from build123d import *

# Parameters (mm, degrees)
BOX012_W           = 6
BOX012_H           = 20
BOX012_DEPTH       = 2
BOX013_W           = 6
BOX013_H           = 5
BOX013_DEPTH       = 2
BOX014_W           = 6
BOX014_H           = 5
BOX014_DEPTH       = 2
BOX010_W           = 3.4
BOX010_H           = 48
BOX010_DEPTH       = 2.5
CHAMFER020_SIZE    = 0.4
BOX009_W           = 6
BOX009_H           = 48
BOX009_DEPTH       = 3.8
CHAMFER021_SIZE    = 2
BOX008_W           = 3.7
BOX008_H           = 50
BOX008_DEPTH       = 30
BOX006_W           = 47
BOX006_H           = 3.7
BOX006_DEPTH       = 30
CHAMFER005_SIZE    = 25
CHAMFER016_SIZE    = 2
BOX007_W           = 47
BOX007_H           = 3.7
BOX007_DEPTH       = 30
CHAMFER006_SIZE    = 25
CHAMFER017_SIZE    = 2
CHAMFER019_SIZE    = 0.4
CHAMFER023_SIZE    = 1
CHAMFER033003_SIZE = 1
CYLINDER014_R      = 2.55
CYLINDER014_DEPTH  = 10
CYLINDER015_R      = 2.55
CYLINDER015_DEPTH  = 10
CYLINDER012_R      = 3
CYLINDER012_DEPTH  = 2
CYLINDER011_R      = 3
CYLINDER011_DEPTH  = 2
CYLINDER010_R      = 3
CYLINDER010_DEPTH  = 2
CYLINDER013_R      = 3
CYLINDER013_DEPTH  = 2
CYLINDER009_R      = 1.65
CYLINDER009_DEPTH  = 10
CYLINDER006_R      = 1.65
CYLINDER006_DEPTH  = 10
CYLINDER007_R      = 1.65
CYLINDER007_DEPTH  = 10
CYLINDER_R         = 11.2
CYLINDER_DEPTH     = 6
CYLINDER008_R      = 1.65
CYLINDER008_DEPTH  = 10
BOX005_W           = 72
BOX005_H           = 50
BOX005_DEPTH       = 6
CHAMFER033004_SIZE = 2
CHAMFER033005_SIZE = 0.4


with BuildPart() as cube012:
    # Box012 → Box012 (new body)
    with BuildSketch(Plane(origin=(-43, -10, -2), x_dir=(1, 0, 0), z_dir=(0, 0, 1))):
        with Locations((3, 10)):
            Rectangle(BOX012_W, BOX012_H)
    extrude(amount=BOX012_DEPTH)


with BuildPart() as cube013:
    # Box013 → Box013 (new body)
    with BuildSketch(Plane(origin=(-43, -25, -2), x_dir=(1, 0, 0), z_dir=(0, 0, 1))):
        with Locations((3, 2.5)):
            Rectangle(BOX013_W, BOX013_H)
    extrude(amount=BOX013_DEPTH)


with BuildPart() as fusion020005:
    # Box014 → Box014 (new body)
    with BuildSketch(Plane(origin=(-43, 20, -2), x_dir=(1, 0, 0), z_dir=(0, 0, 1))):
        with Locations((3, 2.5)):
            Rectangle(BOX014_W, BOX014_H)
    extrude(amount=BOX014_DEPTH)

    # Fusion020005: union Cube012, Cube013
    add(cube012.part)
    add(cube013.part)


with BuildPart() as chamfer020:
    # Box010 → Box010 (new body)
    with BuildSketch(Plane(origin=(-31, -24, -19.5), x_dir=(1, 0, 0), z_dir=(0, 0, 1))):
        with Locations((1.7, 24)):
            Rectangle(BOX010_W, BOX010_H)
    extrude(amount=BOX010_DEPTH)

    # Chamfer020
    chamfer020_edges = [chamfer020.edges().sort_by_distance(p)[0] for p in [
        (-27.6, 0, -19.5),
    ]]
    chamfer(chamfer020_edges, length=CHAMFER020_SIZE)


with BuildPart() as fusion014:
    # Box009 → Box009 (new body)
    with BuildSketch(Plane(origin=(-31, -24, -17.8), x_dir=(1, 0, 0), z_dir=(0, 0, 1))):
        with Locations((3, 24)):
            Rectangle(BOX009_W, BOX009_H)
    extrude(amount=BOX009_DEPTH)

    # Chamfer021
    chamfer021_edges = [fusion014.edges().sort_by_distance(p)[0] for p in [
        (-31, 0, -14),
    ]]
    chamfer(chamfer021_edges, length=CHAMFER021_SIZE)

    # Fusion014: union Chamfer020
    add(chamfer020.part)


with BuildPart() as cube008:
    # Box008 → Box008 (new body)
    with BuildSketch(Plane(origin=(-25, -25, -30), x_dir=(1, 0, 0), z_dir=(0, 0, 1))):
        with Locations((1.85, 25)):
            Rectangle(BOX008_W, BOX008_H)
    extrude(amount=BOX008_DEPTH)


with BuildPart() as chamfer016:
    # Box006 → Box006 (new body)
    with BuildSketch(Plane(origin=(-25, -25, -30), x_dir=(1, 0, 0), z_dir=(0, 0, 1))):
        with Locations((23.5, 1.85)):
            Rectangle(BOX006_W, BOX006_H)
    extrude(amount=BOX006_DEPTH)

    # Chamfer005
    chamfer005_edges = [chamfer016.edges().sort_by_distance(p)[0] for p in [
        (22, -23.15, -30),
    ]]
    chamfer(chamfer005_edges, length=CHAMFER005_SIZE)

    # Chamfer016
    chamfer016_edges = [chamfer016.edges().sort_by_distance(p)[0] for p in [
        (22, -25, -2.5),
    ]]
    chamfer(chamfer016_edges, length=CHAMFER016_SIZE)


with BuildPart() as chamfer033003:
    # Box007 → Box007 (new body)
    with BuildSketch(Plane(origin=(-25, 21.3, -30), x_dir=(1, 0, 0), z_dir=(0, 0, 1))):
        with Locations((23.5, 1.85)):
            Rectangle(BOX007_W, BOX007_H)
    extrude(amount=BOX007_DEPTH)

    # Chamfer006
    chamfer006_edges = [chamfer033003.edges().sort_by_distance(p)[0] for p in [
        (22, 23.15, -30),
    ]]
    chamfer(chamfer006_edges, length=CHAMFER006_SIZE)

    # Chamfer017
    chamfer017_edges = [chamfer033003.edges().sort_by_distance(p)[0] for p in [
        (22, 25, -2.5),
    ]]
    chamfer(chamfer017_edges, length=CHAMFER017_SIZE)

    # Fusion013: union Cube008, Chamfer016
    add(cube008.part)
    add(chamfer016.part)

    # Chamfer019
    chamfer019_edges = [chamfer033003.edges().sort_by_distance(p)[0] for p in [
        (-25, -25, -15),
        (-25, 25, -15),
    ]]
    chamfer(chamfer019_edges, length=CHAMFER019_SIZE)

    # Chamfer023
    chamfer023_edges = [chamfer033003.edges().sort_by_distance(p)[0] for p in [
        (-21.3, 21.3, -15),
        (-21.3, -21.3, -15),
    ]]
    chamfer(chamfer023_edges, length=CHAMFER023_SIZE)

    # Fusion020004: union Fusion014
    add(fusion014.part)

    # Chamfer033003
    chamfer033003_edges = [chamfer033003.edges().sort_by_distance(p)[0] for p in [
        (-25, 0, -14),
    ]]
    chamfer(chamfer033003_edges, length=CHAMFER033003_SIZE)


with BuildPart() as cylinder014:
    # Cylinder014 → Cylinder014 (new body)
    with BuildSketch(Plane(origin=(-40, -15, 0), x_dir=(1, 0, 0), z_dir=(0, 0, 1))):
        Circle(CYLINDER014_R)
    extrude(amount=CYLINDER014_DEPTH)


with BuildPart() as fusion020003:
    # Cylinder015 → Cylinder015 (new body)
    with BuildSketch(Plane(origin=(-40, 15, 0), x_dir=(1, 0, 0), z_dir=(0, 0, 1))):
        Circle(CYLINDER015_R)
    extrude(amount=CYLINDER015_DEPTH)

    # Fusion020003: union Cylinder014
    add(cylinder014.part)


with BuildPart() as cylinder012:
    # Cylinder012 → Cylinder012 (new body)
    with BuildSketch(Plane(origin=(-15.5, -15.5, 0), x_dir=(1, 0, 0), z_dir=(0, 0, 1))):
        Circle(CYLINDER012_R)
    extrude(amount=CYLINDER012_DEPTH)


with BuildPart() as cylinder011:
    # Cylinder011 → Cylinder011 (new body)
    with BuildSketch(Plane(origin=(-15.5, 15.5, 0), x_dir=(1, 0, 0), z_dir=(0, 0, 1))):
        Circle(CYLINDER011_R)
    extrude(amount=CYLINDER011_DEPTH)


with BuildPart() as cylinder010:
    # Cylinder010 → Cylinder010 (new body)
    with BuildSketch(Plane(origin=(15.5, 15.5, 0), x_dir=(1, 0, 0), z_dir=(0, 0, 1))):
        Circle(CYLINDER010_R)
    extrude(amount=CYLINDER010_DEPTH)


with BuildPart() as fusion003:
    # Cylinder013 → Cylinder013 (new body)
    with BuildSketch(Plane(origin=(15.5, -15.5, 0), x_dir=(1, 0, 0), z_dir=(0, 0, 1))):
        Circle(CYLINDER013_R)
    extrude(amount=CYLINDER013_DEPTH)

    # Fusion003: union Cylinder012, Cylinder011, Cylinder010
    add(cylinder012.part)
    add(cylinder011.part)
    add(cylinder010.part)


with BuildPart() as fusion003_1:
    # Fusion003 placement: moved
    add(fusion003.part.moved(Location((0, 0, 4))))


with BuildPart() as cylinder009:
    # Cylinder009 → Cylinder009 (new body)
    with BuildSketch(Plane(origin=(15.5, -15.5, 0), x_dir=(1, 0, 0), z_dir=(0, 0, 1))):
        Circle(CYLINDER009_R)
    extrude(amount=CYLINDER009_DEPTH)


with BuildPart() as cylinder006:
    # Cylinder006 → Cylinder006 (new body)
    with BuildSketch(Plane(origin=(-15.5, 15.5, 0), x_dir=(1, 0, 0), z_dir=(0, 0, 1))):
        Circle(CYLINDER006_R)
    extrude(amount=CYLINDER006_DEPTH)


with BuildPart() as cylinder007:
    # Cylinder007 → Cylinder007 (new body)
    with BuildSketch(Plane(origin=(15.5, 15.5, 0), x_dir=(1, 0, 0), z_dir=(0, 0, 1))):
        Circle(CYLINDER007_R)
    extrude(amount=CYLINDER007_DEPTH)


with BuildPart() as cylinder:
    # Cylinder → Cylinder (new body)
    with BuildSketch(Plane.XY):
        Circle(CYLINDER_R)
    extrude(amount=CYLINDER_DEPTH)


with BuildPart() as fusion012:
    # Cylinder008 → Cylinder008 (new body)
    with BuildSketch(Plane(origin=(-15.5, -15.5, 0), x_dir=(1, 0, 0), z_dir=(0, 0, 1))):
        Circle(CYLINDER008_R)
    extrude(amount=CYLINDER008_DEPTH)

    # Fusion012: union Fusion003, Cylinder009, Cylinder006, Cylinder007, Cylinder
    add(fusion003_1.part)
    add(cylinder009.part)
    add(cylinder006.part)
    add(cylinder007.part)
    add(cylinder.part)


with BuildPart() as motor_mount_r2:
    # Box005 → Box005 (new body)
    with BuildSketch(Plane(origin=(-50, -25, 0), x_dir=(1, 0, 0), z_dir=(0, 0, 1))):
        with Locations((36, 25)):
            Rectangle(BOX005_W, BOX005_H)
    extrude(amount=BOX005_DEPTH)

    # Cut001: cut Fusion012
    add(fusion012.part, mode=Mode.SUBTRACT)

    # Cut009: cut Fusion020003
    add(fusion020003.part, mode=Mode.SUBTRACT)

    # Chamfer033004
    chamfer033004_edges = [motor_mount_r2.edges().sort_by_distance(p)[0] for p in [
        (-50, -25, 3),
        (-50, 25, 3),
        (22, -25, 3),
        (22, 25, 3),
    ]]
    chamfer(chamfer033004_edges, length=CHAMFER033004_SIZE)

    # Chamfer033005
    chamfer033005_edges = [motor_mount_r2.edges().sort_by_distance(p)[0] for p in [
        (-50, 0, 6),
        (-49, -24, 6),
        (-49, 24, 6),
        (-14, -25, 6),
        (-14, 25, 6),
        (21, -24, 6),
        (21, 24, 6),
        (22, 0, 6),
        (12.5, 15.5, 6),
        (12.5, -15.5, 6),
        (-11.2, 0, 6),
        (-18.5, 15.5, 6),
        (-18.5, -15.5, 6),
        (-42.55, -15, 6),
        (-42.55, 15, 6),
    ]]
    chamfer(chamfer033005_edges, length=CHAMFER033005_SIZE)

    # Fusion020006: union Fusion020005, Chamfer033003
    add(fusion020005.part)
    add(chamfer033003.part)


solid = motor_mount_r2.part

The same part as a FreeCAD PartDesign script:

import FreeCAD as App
import Part
import Sketcher


def edges_at(feature, points):
    """Names of the edges that pass closest to the given points."""
    edges = feature.Shape.Edges
    near = lambda p: min(range(len(edges)), key=lambda i: edges[i].distToShape(Part.Vertex(*p))[0])
    return sorted({f"Edge{near(p) + 1}" for p in points})

doc = App.newDocument("Part")
body = doc.addObject("PartDesign::Body", "Body")

# Sketch on XY plane
sketch1 = body.newObject("Sketcher::SketchObject", "Sketch")
sketch1.AttachmentSupport = (doc.getObject("XY_Plane"), [""])
sketch1.MapMode = "FlatFace"
sketch1.AttachmentOffset = App.Placement(App.Vector(0, 0, -2), App.Rotation())
sketch1.addGeometry([
    Part.LineSegment(App.Vector(-43, 10, 0), App.Vector(-43, -10, 0)),
    Part.LineSegment(App.Vector(-43, -10, 0), App.Vector(-37, -10, 0)),
    Part.LineSegment(App.Vector(-37, -10, 0), App.Vector(-37, 10, 0)),
    Part.LineSegment(App.Vector(-37, 10, 0), App.Vector(-43, 10, 0)),
], False)
sketch1.addConstraint([
    Sketcher.Constraint("Coincident", 0, 2, 1, 1),
    Sketcher.Constraint("Coincident", 1, 2, 2, 1),
    Sketcher.Constraint("Coincident", 2, 2, 3, 1),
    Sketcher.Constraint("Coincident", 3, 2, 0, 1),
    Sketcher.Constraint("Vertical", 0),
    Sketcher.Constraint("Horizontal", 1),
    Sketcher.Constraint("Vertical", 2),
    Sketcher.Constraint("Horizontal", 3),
    Sketcher.Constraint("DistanceX", 1, 1, 1, 2, 6.0),
    Sketcher.Constraint("DistanceY", 0, 2, 0, 1, 20.0),
    Sketcher.Constraint("DistanceX", 0, 2, -1, 1, 43.0),
    Sketcher.Constraint("DistanceY", 0, 2, -1, 1, 10.0),
])
pad1 = body.newObject("PartDesign::Pad", "Pad")
pad1.Profile = sketch1
pad1.Length = 2
body2 = doc.addObject("PartDesign::Body", "Body001")

# Sketch on XY plane
sketch2 = body2.newObject("Sketcher::SketchObject", "Sketch001")
sketch2.AttachmentSupport = (doc.getObject("XY_Plane001"), [""])
sketch2.MapMode = "FlatFace"
sketch2.AttachmentOffset = App.Placement(App.Vector(0, 0, -2), App.Rotation())
sketch2.addGeometry([
    Part.LineSegment(App.Vector(-43, -20, 0), App.Vector(-43, -25, 0)),
    Part.LineSegment(App.Vector(-43, -25, 0), App.Vector(-37, -25, 0)),
    Part.LineSegment(App.Vector(-37, -25, 0), App.Vector(-37, -20, 0)),
    Part.LineSegment(App.Vector(-37, -20, 0), App.Vector(-43, -20, 0)),
], False)
sketch2.addConstraint([
    Sketcher.Constraint("Coincident", 0, 2, 1, 1),
    Sketcher.Constraint("Coincident", 1, 2, 2, 1),
    Sketcher.Constraint("Coincident", 2, 2, 3, 1),
    Sketcher.Constraint("Coincident", 3, 2, 0, 1),
    Sketcher.Constraint("Vertical", 0),
    Sketcher.Constraint("Horizontal", 1),
    Sketcher.Constraint("Vertical", 2),
    Sketcher.Constraint("Horizontal", 3),
    Sketcher.Constraint("DistanceX", 1, 1, 1, 2, 6.0),
    Sketcher.Constraint("DistanceY", 0, 2, 0, 1, 5.0),
    Sketcher.Constraint("DistanceX", 0, 2, -1, 1, 43.0),
    Sketcher.Constraint("DistanceY", 0, 2, -1, 1, 25.0),
])
pad2 = body2.newObject("PartDesign::Pad", "Pad001")
pad2.Profile = sketch2
pad2.Length = 2
body3 = doc.addObject("PartDesign::Body", "Body002")
body3.AllowCompound = True

# Sketch on XY plane
sketch3 = body3.newObject("Sketcher::SketchObject", "Sketch002")
sketch3.AttachmentSupport = (doc.getObject("XY_Plane002"), [""])
sketch3.MapMode = "FlatFace"
sketch3.AttachmentOffset = App.Placement(App.Vector(0, 0, -2), App.Rotation())
sketch3.addGeometry([
    Part.LineSegment(App.Vector(-43, 25, 0), App.Vector(-43, 20, 0)),
    Part.LineSegment(App.Vector(-43, 20, 0), App.Vector(-37, 20, 0)),
    Part.LineSegment(App.Vector(-37, 20, 0), App.Vector(-37, 25, 0)),
    Part.LineSegment(App.Vector(-37, 25, 0), App.Vector(-43, 25, 0)),
], False)
sketch3.addConstraint([
    Sketcher.Constraint("Coincident", 0, 2, 1, 1),
    Sketcher.Constraint("Coincident", 1, 2, 2, 1),
    Sketcher.Constraint("Coincident", 2, 2, 3, 1),
    Sketcher.Constraint("Coincident", 3, 2, 0, 1),
    Sketcher.Constraint("Vertical", 0),
    Sketcher.Constraint("Horizontal", 1),
    Sketcher.Constraint("Vertical", 2),
    Sketcher.Constraint("Horizontal", 3),
    Sketcher.Constraint("DistanceX", 1, 1, 1, 2, 6.0),
    Sketcher.Constraint("DistanceY", 0, 2, 0, 1, 5.0),
    Sketcher.Constraint("DistanceX", 0, 2, -1, 1, 43.0),
    Sketcher.Constraint("DistanceY", -1, 1, 0, 2, 20.0),
])
pad3 = body3.newObject("PartDesign::Pad", "Pad002")
pad3.Profile = sketch3
pad3.Length = 2
doc.recompute()

boolean = body3.newObject("PartDesign::Boolean", "Boolean")
boolean.Type = "Fuse"
boolean.addObjects([body])
doc.recompute()

boolean2 = body3.newObject("PartDesign::Boolean", "Boolean001")
boolean2.Type = "Fuse"
boolean2.addObjects([body2])
body4 = doc.addObject("PartDesign::Body", "Body003")

# Sketch on XY plane
sketch4 = body4.newObject("Sketcher::SketchObject", "Sketch003")
sketch4.AttachmentSupport = (doc.getObject("XY_Plane003"), [""])
sketch4.MapMode = "FlatFace"
sketch4.AttachmentOffset = App.Placement(App.Vector(0, 0, -19.5), App.Rotation())
sketch4.addGeometry([
    Part.LineSegment(App.Vector(-31, 24, 0), App.Vector(-31, -24, 0)),
    Part.LineSegment(App.Vector(-31, -24, 0), App.Vector(-27.6, -24, 0)),
    Part.LineSegment(App.Vector(-27.6, -24, 0), App.Vector(-27.6, 24, 0)),
    Part.LineSegment(App.Vector(-27.6, 24, 0), App.Vector(-31, 24, 0)),
], False)
sketch4.addConstraint([
    Sketcher.Constraint("Coincident", 0, 2, 1, 1),
    Sketcher.Constraint("Coincident", 1, 2, 2, 1),
    Sketcher.Constraint("Coincident", 2, 2, 3, 1),
    Sketcher.Constraint("Coincident", 3, 2, 0, 1),
    Sketcher.Constraint("Vertical", 0),
    Sketcher.Constraint("Horizontal", 1),
    Sketcher.Constraint("Vertical", 2),
    Sketcher.Constraint("Horizontal", 3),
    Sketcher.Constraint("DistanceY", 0, 2, 0, 1, 48.0),
    Sketcher.Constraint("DistanceX", 1, 1, 1, 2, 3.4),
    Sketcher.Constraint("DistanceX", 0, 2, -1, 1, 31.0),
    Sketcher.Constraint("DistanceY", 0, 2, -1, 1, 24.0),
])
pad4 = body4.newObject("PartDesign::Pad", "Pad003")
pad4.Profile = sketch4
pad4.Length = 2.5
doc.recompute()

chamfer = body4.newObject("PartDesign::Chamfer", "Chamfer")
chamfer.Base = (pad4, edges_at(pad4, [(-27.6, 0, -19.5)]))
chamfer.Size = 0.4
body5 = doc.addObject("PartDesign::Body", "Body004")

# Sketch on XY plane
sketch5 = body5.newObject("Sketcher::SketchObject", "Sketch004")
sketch5.AttachmentSupport = (doc.getObject("XY_Plane004"), [""])
sketch5.MapMode = "FlatFace"
sketch5.AttachmentOffset = App.Placement(App.Vector(0, 0, -17.8), App.Rotation())
sketch5.addGeometry([
    Part.LineSegment(App.Vector(-31, 24, 0), App.Vector(-31, -24, 0)),
    Part.LineSegment(App.Vector(-31, -24, 0), App.Vector(-25, -24, 0)),
    Part.LineSegment(App.Vector(-25, -24, 0), App.Vector(-25, 24, 0)),
    Part.LineSegment(App.Vector(-25, 24, 0), App.Vector(-31, 24, 0)),
], False)
sketch5.addConstraint([
    Sketcher.Constraint("Coincident", 0, 2, 1, 1),
    Sketcher.Constraint("Coincident", 1, 2, 2, 1),
    Sketcher.Constraint("Coincident", 2, 2, 3, 1),
    Sketcher.Constraint("Coincident", 3, 2, 0, 1),
    Sketcher.Constraint("Vertical", 0),
    Sketcher.Constraint("Horizontal", 1),
    Sketcher.Constraint("Vertical", 2),
    Sketcher.Constraint("Horizontal", 3),
    Sketcher.Constraint("DistanceX", 1, 1, 1, 2, 6.0),
    Sketcher.Constraint("DistanceY", 0, 2, 0, 1, 48.0),
    Sketcher.Constraint("DistanceX", 0, 2, -1, 1, 31.0),
    Sketcher.Constraint("DistanceY", 0, 2, -1, 1, 24.0),
])
pad5 = body5.newObject("PartDesign::Pad", "Pad004")
pad5.Profile = sketch5
pad5.Length = 3.8
doc.recompute()

chamfer2 = body5.newObject("PartDesign::Chamfer", "Chamfer001")
chamfer2.Base = (pad5, edges_at(pad5, [(-31, 0, -14)]))
chamfer2.Size = 2
doc.recompute()

boolean3 = body5.newObject("PartDesign::Boolean", "Boolean002")
boolean3.Type = "Fuse"
boolean3.addObjects([body4])
body6 = doc.addObject("PartDesign::Body", "Body005")

# Sketch on XY plane
sketch6 = body6.newObject("Sketcher::SketchObject", "Sketch005")
sketch6.AttachmentSupport = (doc.getObject("XY_Plane005"), [""])
sketch6.MapMode = "FlatFace"
sketch6.AttachmentOffset = App.Placement(App.Vector(0, 0, -30), App.Rotation())
sketch6.addGeometry([
    Part.LineSegment(App.Vector(-25, 25, 0), App.Vector(-25, -25, 0)),
    Part.LineSegment(App.Vector(-25, -25, 0), App.Vector(-21.3, -25, 0)),
    Part.LineSegment(App.Vector(-21.3, -25, 0), App.Vector(-21.3, 25, 0)),
    Part.LineSegment(App.Vector(-21.3, 25, 0), App.Vector(-25, 25, 0)),
], False)
sketch6.addConstraint([
    Sketcher.Constraint("Coincident", 0, 2, 1, 1),
    Sketcher.Constraint("Coincident", 1, 2, 2, 1),
    Sketcher.Constraint("Coincident", 2, 2, 3, 1),
    Sketcher.Constraint("Coincident", 3, 2, 0, 1),
    Sketcher.Constraint("Vertical", 0),
    Sketcher.Constraint("Horizontal", 1),
    Sketcher.Constraint("Vertical", 2),
    Sketcher.Constraint("Horizontal", 3),
    Sketcher.Constraint("DistanceY", 0, 2, 0, 1, 50.0),
    Sketcher.Constraint("DistanceX", 1, 1, 1, 2, 3.7),
    Sketcher.Constraint("DistanceX", 0, 2, -1, 1, 25.0),
    Sketcher.Constraint("DistanceY", 0, 2, -1, 1, 25.0),
])
pad6 = body6.newObject("PartDesign::Pad", "Pad005")
pad6.Profile = sketch6
pad6.Length = 30
body7 = doc.addObject("PartDesign::Body", "Body006")

# Sketch on XY plane
sketch7 = body7.newObject("Sketcher::SketchObject", "Sketch006")
sketch7.AttachmentSupport = (doc.getObject("XY_Plane006"), [""])
sketch7.MapMode = "FlatFace"
sketch7.AttachmentOffset = App.Placement(App.Vector(0, 0, -30), App.Rotation())
sketch7.addGeometry([
    Part.LineSegment(App.Vector(-25, -21.3, 0), App.Vector(-25, -25, 0)),
    Part.LineSegment(App.Vector(-25, -25, 0), App.Vector(22, -25, 0)),
    Part.LineSegment(App.Vector(22, -25, 0), App.Vector(22, -21.3, 0)),
    Part.LineSegment(App.Vector(22, -21.3, 0), App.Vector(-25, -21.3, 0)),
], False)
sketch7.addConstraint([
    Sketcher.Constraint("Coincident", 0, 2, 1, 1),
    Sketcher.Constraint("Coincident", 1, 2, 2, 1),
    Sketcher.Constraint("Coincident", 2, 2, 3, 1),
    Sketcher.Constraint("Coincident", 3, 2, 0, 1),
    Sketcher.Constraint("Vertical", 0),
    Sketcher.Constraint("Horizontal", 1),
    Sketcher.Constraint("Vertical", 2),
    Sketcher.Constraint("Horizontal", 3),
    Sketcher.Constraint("DistanceX", 1, 1, 1, 2, 47.0),
    Sketcher.Constraint("DistanceY", 0, 2, 0, 1, 3.7),
    Sketcher.Constraint("DistanceX", 0, 2, -1, 1, 25.0),
    Sketcher.Constraint("DistanceY", 0, 2, -1, 1, 25.0),
])
pad7 = body7.newObject("PartDesign::Pad", "Pad006")
pad7.Profile = sketch7
pad7.Length = 30
doc.recompute()

chamfer3 = body7.newObject("PartDesign::Chamfer", "Chamfer002")
chamfer3.Base = (pad7, edges_at(pad7, [(22, -23.15, -30)]))
chamfer3.Size = 25
doc.recompute()

chamfer4 = body7.newObject("PartDesign::Chamfer", "Chamfer003")
chamfer4.Base = (chamfer3, edges_at(chamfer3, [(22, -25, -2.5)]))
chamfer4.Size = 2
body8 = doc.addObject("PartDesign::Body", "Body007")

# Sketch on XY plane
sketch8 = body8.newObject("Sketcher::SketchObject", "Sketch007")
sketch8.AttachmentSupport = (doc.getObject("XY_Plane007"), [""])
sketch8.MapMode = "FlatFace"
sketch8.AttachmentOffset = App.Placement(App.Vector(0, 0, -30), App.Rotation())
sketch8.addGeometry([
    Part.LineSegment(App.Vector(-25, 25, 0), App.Vector(-25, 21.3, 0)),
    Part.LineSegment(App.Vector(-25, 21.3, 0), App.Vector(22, 21.3, 0)),
    Part.LineSegment(App.Vector(22, 21.3, 0), App.Vector(22, 25, 0)),
    Part.LineSegment(App.Vector(22, 25, 0), App.Vector(-25, 25, 0)),
], False)
sketch8.addConstraint([
    Sketcher.Constraint("Coincident", 0, 2, 1, 1),
    Sketcher.Constraint("Coincident", 1, 2, 2, 1),
    Sketcher.Constraint("Coincident", 2, 2, 3, 1),
    Sketcher.Constraint("Coincident", 3, 2, 0, 1),
    Sketcher.Constraint("Vertical", 0),
    Sketcher.Constraint("Horizontal", 1),
    Sketcher.Constraint("Vertical", 2),
    Sketcher.Constraint("Horizontal", 3),
    Sketcher.Constraint("DistanceX", 1, 1, 1, 2, 47.0),
    Sketcher.Constraint("DistanceY", 0, 2, 0, 1, 3.7),
    Sketcher.Constraint("DistanceX", 0, 2, -1, 1, 25.0),
    Sketcher.Constraint("DistanceY", -1, 1, 2, 2, 25.0),
])
pad8 = body8.newObject("PartDesign::Pad", "Pad007")
pad8.Profile = sketch8
pad8.Length = 30
doc.recompute()

chamfer5 = body8.newObject("PartDesign::Chamfer", "Chamfer004")
chamfer5.Base = (pad8, edges_at(pad8, [(22, 23.15, -30)]))
chamfer5.Size = 25
doc.recompute()

chamfer6 = body8.newObject("PartDesign::Chamfer", "Chamfer005")
chamfer6.Base = (chamfer5, edges_at(chamfer5, [(22, 25, -2.5)]))
chamfer6.Size = 2
doc.recompute()

boolean4 = body8.newObject("PartDesign::Boolean", "Boolean003")
boolean4.Type = "Fuse"
boolean4.addObjects([body6])
doc.recompute()

boolean5 = body8.newObject("PartDesign::Boolean", "Boolean004")
boolean5.Type = "Fuse"
boolean5.addObjects([body7])
doc.recompute()

chamfer7 = body8.newObject("PartDesign::Chamfer", "Chamfer006")
chamfer7.Base = (boolean5, edges_at(boolean5, [(-25, -25, -15), (-25, 25, -15)]))
chamfer7.Size = 0.4
doc.recompute()

chamfer8 = body8.newObject("PartDesign::Chamfer", "Chamfer007")
chamfer8.Base = (chamfer7, edges_at(chamfer7, [(-21.3, 21.3, -15), (-21.3, -21.3, -15)]))
chamfer8.Size = 1
doc.recompute()

boolean6 = body8.newObject("PartDesign::Boolean", "Boolean005")
boolean6.Type = "Fuse"
boolean6.addObjects([body5])
doc.recompute()

chamfer9 = body8.newObject("PartDesign::Chamfer", "Chamfer008")
chamfer9.Base = (boolean6, edges_at(boolean6, [(-25, 0, -14)]))
chamfer9.Size = 1
body9 = doc.addObject("PartDesign::Body", "Body008")

# Sketch on XY plane
sketch9 = body9.newObject("Sketcher::SketchObject", "Sketch008")
sketch9.AttachmentSupport = (doc.getObject("XY_Plane008"), [""])
sketch9.MapMode = "FlatFace"
sketch9.addGeometry(Part.Circle(App.Vector(-40, -15, 0), App.Vector(0, 0, 1), 2.5), False)
sketch9.addConstraint([
    Sketcher.Constraint("Diameter", 0, 5.1),
    Sketcher.Constraint("DistanceX", 0, 3, -1, 1, 40.0),
    Sketcher.Constraint("DistanceY", 0, 3, -1, 1, 15.0),
])
pad9 = body9.newObject("PartDesign::Pad", "Pad008")
pad9.Profile = sketch9
pad9.Length = 10
body10 = doc.addObject("PartDesign::Body", "Body009")
body10.AllowCompound = True

# Sketch on XY plane
sketch10 = body10.newObject("Sketcher::SketchObject", "Sketch009")
sketch10.AttachmentSupport = (doc.getObject("XY_Plane009"), [""])
sketch10.MapMode = "FlatFace"
sketch10.addGeometry(Part.Circle(App.Vector(-40, 15, 0), App.Vector(0, 0, 1), 2.5), False)
sketch10.addConstraint([
    Sketcher.Constraint("Diameter", 0, 5.1),
    Sketcher.Constraint("DistanceX", 0, 3, -1, 1, 40.0),
    Sketcher.Constraint("DistanceY", -1, 1, 0, 3, 15.0),
])
pad10 = body10.newObject("PartDesign::Pad", "Pad009")
pad10.Profile = sketch10
pad10.Length = 10
doc.recompute()

boolean7 = body10.newObject("PartDesign::Boolean", "Boolean006")
boolean7.Type = "Fuse"
boolean7.addObjects([body9])
body11 = doc.addObject("PartDesign::Body", "Body010")

# Sketch on XY plane
sketch11 = body11.newObject("Sketcher::SketchObject", "Sketch010")
sketch11.AttachmentSupport = (doc.getObject("XY_Plane010"), [""])
sketch11.MapMode = "FlatFace"
sketch11.addGeometry(Part.Circle(App.Vector(-15.5, -15.5, 0), App.Vector(0, 0, 1), 3), False)
sketch11.addConstraint([
    Sketcher.Constraint("Diameter", 0, 6.0),
    Sketcher.Constraint("DistanceX", 0, 3, -1, 1, 15.5),
    Sketcher.Constraint("DistanceY", 0, 3, -1, 1, 15.5),
])
pad11 = body11.newObject("PartDesign::Pad", "Pad010")
pad11.Profile = sketch11
pad11.Length = 2
body12 = doc.addObject("PartDesign::Body", "Body011")

# Sketch on XY plane
sketch12 = body12.newObject("Sketcher::SketchObject", "Sketch011")
sketch12.AttachmentSupport = (doc.getObject("XY_Plane011"), [""])
sketch12.MapMode = "FlatFace"
sketch12.addGeometry(Part.Circle(App.Vector(-15.5, 15.5, 0), App.Vector(0, 0, 1), 3), False)
sketch12.addConstraint([
    Sketcher.Constraint("Diameter", 0, 6.0),
    Sketcher.Constraint("DistanceX", 0, 3, -1, 1, 15.5),
    Sketcher.Constraint("DistanceY", -1, 1, 0, 3, 15.5),
])
pad12 = body12.newObject("PartDesign::Pad", "Pad011")
pad12.Profile = sketch12
pad12.Length = 2
body13 = doc.addObject("PartDesign::Body", "Body012")

# Sketch on XY plane
sketch13 = body13.newObject("Sketcher::SketchObject", "Sketch012")
sketch13.AttachmentSupport = (doc.getObject("XY_Plane012"), [""])
sketch13.MapMode = "FlatFace"
sketch13.addGeometry(Part.Circle(App.Vector(15.5, 15.5, 0), App.Vector(0, 0, 1), 3), False)
sketch13.addConstraint([
    Sketcher.Constraint("Diameter", 0, 6.0),
    Sketcher.Constraint("DistanceX", -1, 1, 0, 3, 15.5),
    Sketcher.Constraint("DistanceY", -1, 1, 0, 3, 15.5),
])
pad13 = body13.newObject("PartDesign::Pad", "Pad012")
pad13.Profile = sketch13
pad13.Length = 2
body14 = doc.addObject("PartDesign::Body", "Body013")
body14.AllowCompound = True

# Sketch on XY plane
sketch14 = body14.newObject("Sketcher::SketchObject", "Sketch013")
sketch14.AttachmentSupport = (doc.getObject("XY_Plane013"), [""])
sketch14.MapMode = "FlatFace"
sketch14.addGeometry(Part.Circle(App.Vector(15.5, -15.5, 0), App.Vector(0, 0, 1), 3), False)
sketch14.addConstraint([
    Sketcher.Constraint("Diameter", 0, 6.0),
    Sketcher.Constraint("DistanceX", -1, 1, 0, 3, 15.5),
    Sketcher.Constraint("DistanceY", 0, 3, -1, 1, 15.5),
])
pad14 = body14.newObject("PartDesign::Pad", "Pad013")
pad14.Profile = sketch14
pad14.Length = 2
doc.recompute()

boolean8 = body14.newObject("PartDesign::Boolean", "Boolean007")
boolean8.Type = "Fuse"
boolean8.addObjects([body11])
doc.recompute()

boolean9 = body14.newObject("PartDesign::Boolean", "Boolean008")
boolean9.Type = "Fuse"
boolean9.addObjects([body12])
doc.recompute()

boolean10 = body14.newObject("PartDesign::Boolean", "Boolean009")
boolean10.Type = "Fuse"
boolean10.addObjects([body13])
body15 = doc.addObject("PartDesign::Body", "Body014")
body15.AllowCompound = True
doc.recompute()

body14.Placement = App.Placement(App.Vector(0, 0, 4), App.Rotation(App.Vector(0, 0, 1), 0))
boolean11 = body15.newObject("PartDesign::Boolean", "Boolean010")
boolean11.Type = "Fuse"
boolean11.addObjects([body14])
body16 = doc.addObject("PartDesign::Body", "Body015")

# Sketch on XY plane
sketch15 = body16.newObject("Sketcher::SketchObject", "Sketch014")
sketch15.AttachmentSupport = (doc.getObject("XY_Plane015"), [""])
sketch15.MapMode = "FlatFace"
sketch15.addGeometry(Part.Circle(App.Vector(15.5, -15.5, 0), App.Vector(0, 0, 1), 1.6), False)
sketch15.addConstraint([
    Sketcher.Constraint("Diameter", 0, 3.3),
    Sketcher.Constraint("DistanceX", -1, 1, 0, 3, 15.5),
    Sketcher.Constraint("DistanceY", 0, 3, -1, 1, 15.5),
])
pad15 = body16.newObject("PartDesign::Pad", "Pad014")
pad15.Profile = sketch15
pad15.Length = 10
body17 = doc.addObject("PartDesign::Body", "Body016")

# Sketch on XY plane
sketch16 = body17.newObject("Sketcher::SketchObject", "Sketch015")
sketch16.AttachmentSupport = (doc.getObject("XY_Plane016"), [""])
sketch16.MapMode = "FlatFace"
sketch16.addGeometry(Part.Circle(App.Vector(-15.5, 15.5, 0), App.Vector(0, 0, 1), 1.6), False)
sketch16.addConstraint([
    Sketcher.Constraint("Diameter", 0, 3.3),
    Sketcher.Constraint("DistanceX", 0, 3, -1, 1, 15.5),
    Sketcher.Constraint("DistanceY", -1, 1, 0, 3, 15.5),
])
pad16 = body17.newObject("PartDesign::Pad", "Pad015")
pad16.Profile = sketch16
pad16.Length = 10
body18 = doc.addObject("PartDesign::Body", "Body017")

# Sketch on XY plane
sketch17 = body18.newObject("Sketcher::SketchObject", "Sketch016")
sketch17.AttachmentSupport = (doc.getObject("XY_Plane017"), [""])
sketch17.MapMode = "FlatFace"
sketch17.addGeometry(Part.Circle(App.Vector(15.5, 15.5, 0), App.Vector(0, 0, 1), 1.6), False)
sketch17.addConstraint([
    Sketcher.Constraint("Diameter", 0, 3.3),
    Sketcher.Constraint("DistanceX", -1, 1, 0, 3, 15.5),
    Sketcher.Constraint("DistanceY", -1, 1, 0, 3, 15.5),
])
pad17 = body18.newObject("PartDesign::Pad", "Pad016")
pad17.Profile = sketch17
pad17.Length = 10
body19 = doc.addObject("PartDesign::Body", "Body018")

# Sketch on XY plane
sketch18 = body19.newObject("Sketcher::SketchObject", "Sketch017")
sketch18.AttachmentSupport = (doc.getObject("XY_Plane018"), [""])
sketch18.MapMode = "FlatFace"
sketch18.addGeometry(Part.Circle(App.Vector(0, 0, 0), App.Vector(0, 0, 1), 11), False)
sketch18.addConstraint([
    Sketcher.Constraint("Coincident", 0, 3, -1, 1),
    Sketcher.Constraint("Diameter", 0, 22.4),
])
pad18 = body19.newObject("PartDesign::Pad", "Pad017")
pad18.Profile = sketch18
pad18.Length = 6
body20 = doc.addObject("PartDesign::Body", "Body019")
body20.AllowCompound = True

# Sketch on XY plane
sketch19 = body20.newObject("Sketcher::SketchObject", "Sketch018")
sketch19.AttachmentSupport = (doc.getObject("XY_Plane019"), [""])
sketch19.MapMode = "FlatFace"
sketch19.addGeometry(Part.Circle(App.Vector(-15.5, -15.5, 0), App.Vector(0, 0, 1), 1.6), False)
sketch19.addConstraint([
    Sketcher.Constraint("Diameter", 0, 3.3),
    Sketcher.Constraint("DistanceX", 0, 3, -1, 1, 15.5),
    Sketcher.Constraint("DistanceY", 0, 3, -1, 1, 15.5),
])
pad19 = body20.newObject("PartDesign::Pad", "Pad018")
pad19.Profile = sketch19
pad19.Length = 10
doc.recompute()

boolean12 = body20.newObject("PartDesign::Boolean", "Boolean011")
boolean12.Type = "Fuse"
boolean12.addObjects([body15])
doc.recompute()

boolean13 = body20.newObject("PartDesign::Boolean", "Boolean012")
boolean13.Type = "Fuse"
boolean13.addObjects([body16])
doc.recompute()

boolean14 = body20.newObject("PartDesign::Boolean", "Boolean013")
boolean14.Type = "Fuse"
boolean14.addObjects([body17])
doc.recompute()

boolean15 = body20.newObject("PartDesign::Boolean", "Boolean014")
boolean15.Type = "Fuse"
boolean15.addObjects([body18])
doc.recompute()

boolean16 = body20.newObject("PartDesign::Boolean", "Boolean015")
boolean16.Type = "Fuse"
boolean16.addObjects([body19])
body21 = doc.addObject("PartDesign::Body", "Body020")

# Sketch on XY plane
sketch20 = body21.newObject("Sketcher::SketchObject", "Sketch019")
sketch20.AttachmentSupport = (doc.getObject("XY_Plane020"), [""])
sketch20.MapMode = "FlatFace"
sketch20.addGeometry([
    Part.LineSegment(App.Vector(-50, 25, 0), App.Vector(-50, -25, 0)),
    Part.LineSegment(App.Vector(-50, -25, 0), App.Vector(22, -25, 0)),
    Part.LineSegment(App.Vector(22, -25, 0), App.Vector(22, 25, 0)),
    Part.LineSegment(App.Vector(22, 25, 0), App.Vector(-50, 25, 0)),
], False)
sketch20.addConstraint([
    Sketcher.Constraint("Coincident", 0, 2, 1, 1),
    Sketcher.Constraint("Coincident", 1, 2, 2, 1),
    Sketcher.Constraint("Coincident", 2, 2, 3, 1),
    Sketcher.Constraint("Coincident", 3, 2, 0, 1),
    Sketcher.Constraint("Vertical", 0),
    Sketcher.Constraint("Horizontal", 1),
    Sketcher.Constraint("Vertical", 2),
    Sketcher.Constraint("Horizontal", 3),
    Sketcher.Constraint("DistanceX", 1, 1, 1, 2, 72.0),
    Sketcher.Constraint("DistanceY", 0, 2, 0, 1, 50.0),
    Sketcher.Constraint("DistanceX", 0, 2, -1, 1, 50.0),
    Sketcher.Constraint("DistanceY", 0, 2, -1, 1, 25.0),
])
pad20 = body21.newObject("PartDesign::Pad", "Pad019")
pad20.Profile = sketch20
pad20.Length = 6
doc.recompute()

boolean17 = body21.newObject("PartDesign::Boolean", "Boolean016")
boolean17.Type = "Cut"
boolean17.addObjects([body20])
doc.recompute()

boolean18 = body21.newObject("PartDesign::Boolean", "Boolean017")
boolean18.Type = "Cut"
boolean18.addObjects([body10])
doc.recompute()

chamfer10 = body21.newObject("PartDesign::Chamfer", "Chamfer009")
chamfer10.Base = (boolean18, edges_at(boolean18, [
    (-50, -25, 3),
    (-50, 25, 3),
    (22, -25, 3),
    (22, 25, 3),
]))
chamfer10.Size = 2
doc.recompute()

chamfer11 = body21.newObject("PartDesign::Chamfer", "Chamfer010")
chamfer11.Base = (chamfer10, edges_at(chamfer10, [
    (-50, 0, 6),
    (-49, -24, 6),
    (-49, 24, 6),
    (-14, -25, 6),
    (-14, 25, 6),
    (21, -24, 6),
    (21, 24, 6),
    (22, 0, 6),
    (12.5, 15.5, 6),
    (12.5, -15.5, 6),
    (-11.2, 0, 6),
    (-18.5, 15.5, 6),
    (-18.5, -15.5, 6),
    (-42.55, -15, 6),
    (-42.55, 15, 6),
]))
chamfer11.Size = 0.4
doc.recompute()

boolean19 = body21.newObject("PartDesign::Boolean", "Boolean018")
boolean19.Type = "Fuse"
boolean19.addObjects([body3])
doc.recompute()

boolean20 = body21.newObject("PartDesign::Boolean", "Boolean019")
boolean20.Type = "Fuse"
boolean20.addObjects([body8])

doc.recompute()
